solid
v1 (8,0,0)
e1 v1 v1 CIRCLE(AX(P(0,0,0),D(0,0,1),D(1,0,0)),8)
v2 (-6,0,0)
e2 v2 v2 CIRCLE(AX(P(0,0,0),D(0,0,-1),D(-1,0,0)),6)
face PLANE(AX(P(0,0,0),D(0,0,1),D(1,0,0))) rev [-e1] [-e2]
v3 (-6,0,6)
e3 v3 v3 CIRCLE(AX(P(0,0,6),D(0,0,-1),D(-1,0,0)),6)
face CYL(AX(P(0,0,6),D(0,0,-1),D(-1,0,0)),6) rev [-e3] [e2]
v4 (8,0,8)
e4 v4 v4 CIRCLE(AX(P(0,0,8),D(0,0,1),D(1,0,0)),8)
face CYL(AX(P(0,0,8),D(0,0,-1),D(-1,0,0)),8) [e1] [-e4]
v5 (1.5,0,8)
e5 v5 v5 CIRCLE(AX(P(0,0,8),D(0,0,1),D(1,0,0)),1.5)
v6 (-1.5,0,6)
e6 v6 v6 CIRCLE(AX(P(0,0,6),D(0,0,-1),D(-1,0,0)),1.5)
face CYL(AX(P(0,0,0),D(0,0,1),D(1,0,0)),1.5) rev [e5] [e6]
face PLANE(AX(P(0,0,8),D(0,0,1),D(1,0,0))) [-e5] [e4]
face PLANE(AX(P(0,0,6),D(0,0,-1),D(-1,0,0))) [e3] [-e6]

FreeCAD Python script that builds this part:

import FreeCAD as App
import Part
import Sketcher
Q = App.Units.Quantity

doc = App.newDocument("Part")
body = doc.addObject("PartDesign::Body", "Body")

# Sketch on XY plane
sketch1 = body.newObject("Sketcher::SketchObject", "Sketch")
sketch1.AttachmentSupport = (doc.getObject("XY_Plane"), [""])
sketch1.MapMode = "FlatFace"
sketch1.addGeometry(Part.Circle(App.Vector(0, 0, 0), App.Vector(0, 0, 1), 8), False)
sketch1.addConstraint(Sketcher.Constraint("Coincident", 0, 3, -1, 1))
sketch1.addConstraint(Sketcher.Constraint("Diameter", 0, Q("16 mm")))
pad1 = body.newObject("PartDesign::Pad", "Pad")
pad1.Profile = sketch1
pad1.Length = 8

# Sketch on XY plane
sketch2 = body.newObject("Sketcher::SketchObject", "Sketch001")
sketch2.AttachmentSupport = (doc.getObject("XY_Plane"), [""])
sketch2.MapMode = "FlatFace"
sketch2.addGeometry(Part.Circle(App.Vector(0, 0, 0), App.Vector(0, 0, 1), 6), False)
sketch2.addConstraint(Sketcher.Constraint("Coincident", 0, 3, -1, 1))
sketch2.addConstraint(Sketcher.Constraint("Diameter", 0, Q("12 mm")))
pocket1 = body.newObject("PartDesign::Pocket", "Pocket")
pocket1.Profile = sketch2
pocket1.Length = 6
pocket1.Reversed = True

# Sketch on XY plane
sketch3 = body.newObject("Sketcher::SketchObject", "Sketch002")
sketch3.AttachmentSupport = (doc.getObject("XY_Plane"), [""])
sketch3.MapMode = "FlatFace"
sketch3.AttachmentOffset = App.Placement(App.Vector(0, 0, 8), App.Rotation())
sketch3.addGeometry(Part.Circle(App.Vector(0, 0, 0), App.Vector(0, 0, 1), 1.5), False)
sketch3.addConstraint(Sketcher.Constraint("Coincident", 0, 3, -1, 1))
sketch3.addConstraint(Sketcher.Constraint("Diameter", 0, Q("3 mm")))
pocket2 = body.newObject("PartDesign::Pocket", "Pocket001")
pocket2.Profile = sketch3
pocket2.Type = "ThroughAll"

doc.recompute()
